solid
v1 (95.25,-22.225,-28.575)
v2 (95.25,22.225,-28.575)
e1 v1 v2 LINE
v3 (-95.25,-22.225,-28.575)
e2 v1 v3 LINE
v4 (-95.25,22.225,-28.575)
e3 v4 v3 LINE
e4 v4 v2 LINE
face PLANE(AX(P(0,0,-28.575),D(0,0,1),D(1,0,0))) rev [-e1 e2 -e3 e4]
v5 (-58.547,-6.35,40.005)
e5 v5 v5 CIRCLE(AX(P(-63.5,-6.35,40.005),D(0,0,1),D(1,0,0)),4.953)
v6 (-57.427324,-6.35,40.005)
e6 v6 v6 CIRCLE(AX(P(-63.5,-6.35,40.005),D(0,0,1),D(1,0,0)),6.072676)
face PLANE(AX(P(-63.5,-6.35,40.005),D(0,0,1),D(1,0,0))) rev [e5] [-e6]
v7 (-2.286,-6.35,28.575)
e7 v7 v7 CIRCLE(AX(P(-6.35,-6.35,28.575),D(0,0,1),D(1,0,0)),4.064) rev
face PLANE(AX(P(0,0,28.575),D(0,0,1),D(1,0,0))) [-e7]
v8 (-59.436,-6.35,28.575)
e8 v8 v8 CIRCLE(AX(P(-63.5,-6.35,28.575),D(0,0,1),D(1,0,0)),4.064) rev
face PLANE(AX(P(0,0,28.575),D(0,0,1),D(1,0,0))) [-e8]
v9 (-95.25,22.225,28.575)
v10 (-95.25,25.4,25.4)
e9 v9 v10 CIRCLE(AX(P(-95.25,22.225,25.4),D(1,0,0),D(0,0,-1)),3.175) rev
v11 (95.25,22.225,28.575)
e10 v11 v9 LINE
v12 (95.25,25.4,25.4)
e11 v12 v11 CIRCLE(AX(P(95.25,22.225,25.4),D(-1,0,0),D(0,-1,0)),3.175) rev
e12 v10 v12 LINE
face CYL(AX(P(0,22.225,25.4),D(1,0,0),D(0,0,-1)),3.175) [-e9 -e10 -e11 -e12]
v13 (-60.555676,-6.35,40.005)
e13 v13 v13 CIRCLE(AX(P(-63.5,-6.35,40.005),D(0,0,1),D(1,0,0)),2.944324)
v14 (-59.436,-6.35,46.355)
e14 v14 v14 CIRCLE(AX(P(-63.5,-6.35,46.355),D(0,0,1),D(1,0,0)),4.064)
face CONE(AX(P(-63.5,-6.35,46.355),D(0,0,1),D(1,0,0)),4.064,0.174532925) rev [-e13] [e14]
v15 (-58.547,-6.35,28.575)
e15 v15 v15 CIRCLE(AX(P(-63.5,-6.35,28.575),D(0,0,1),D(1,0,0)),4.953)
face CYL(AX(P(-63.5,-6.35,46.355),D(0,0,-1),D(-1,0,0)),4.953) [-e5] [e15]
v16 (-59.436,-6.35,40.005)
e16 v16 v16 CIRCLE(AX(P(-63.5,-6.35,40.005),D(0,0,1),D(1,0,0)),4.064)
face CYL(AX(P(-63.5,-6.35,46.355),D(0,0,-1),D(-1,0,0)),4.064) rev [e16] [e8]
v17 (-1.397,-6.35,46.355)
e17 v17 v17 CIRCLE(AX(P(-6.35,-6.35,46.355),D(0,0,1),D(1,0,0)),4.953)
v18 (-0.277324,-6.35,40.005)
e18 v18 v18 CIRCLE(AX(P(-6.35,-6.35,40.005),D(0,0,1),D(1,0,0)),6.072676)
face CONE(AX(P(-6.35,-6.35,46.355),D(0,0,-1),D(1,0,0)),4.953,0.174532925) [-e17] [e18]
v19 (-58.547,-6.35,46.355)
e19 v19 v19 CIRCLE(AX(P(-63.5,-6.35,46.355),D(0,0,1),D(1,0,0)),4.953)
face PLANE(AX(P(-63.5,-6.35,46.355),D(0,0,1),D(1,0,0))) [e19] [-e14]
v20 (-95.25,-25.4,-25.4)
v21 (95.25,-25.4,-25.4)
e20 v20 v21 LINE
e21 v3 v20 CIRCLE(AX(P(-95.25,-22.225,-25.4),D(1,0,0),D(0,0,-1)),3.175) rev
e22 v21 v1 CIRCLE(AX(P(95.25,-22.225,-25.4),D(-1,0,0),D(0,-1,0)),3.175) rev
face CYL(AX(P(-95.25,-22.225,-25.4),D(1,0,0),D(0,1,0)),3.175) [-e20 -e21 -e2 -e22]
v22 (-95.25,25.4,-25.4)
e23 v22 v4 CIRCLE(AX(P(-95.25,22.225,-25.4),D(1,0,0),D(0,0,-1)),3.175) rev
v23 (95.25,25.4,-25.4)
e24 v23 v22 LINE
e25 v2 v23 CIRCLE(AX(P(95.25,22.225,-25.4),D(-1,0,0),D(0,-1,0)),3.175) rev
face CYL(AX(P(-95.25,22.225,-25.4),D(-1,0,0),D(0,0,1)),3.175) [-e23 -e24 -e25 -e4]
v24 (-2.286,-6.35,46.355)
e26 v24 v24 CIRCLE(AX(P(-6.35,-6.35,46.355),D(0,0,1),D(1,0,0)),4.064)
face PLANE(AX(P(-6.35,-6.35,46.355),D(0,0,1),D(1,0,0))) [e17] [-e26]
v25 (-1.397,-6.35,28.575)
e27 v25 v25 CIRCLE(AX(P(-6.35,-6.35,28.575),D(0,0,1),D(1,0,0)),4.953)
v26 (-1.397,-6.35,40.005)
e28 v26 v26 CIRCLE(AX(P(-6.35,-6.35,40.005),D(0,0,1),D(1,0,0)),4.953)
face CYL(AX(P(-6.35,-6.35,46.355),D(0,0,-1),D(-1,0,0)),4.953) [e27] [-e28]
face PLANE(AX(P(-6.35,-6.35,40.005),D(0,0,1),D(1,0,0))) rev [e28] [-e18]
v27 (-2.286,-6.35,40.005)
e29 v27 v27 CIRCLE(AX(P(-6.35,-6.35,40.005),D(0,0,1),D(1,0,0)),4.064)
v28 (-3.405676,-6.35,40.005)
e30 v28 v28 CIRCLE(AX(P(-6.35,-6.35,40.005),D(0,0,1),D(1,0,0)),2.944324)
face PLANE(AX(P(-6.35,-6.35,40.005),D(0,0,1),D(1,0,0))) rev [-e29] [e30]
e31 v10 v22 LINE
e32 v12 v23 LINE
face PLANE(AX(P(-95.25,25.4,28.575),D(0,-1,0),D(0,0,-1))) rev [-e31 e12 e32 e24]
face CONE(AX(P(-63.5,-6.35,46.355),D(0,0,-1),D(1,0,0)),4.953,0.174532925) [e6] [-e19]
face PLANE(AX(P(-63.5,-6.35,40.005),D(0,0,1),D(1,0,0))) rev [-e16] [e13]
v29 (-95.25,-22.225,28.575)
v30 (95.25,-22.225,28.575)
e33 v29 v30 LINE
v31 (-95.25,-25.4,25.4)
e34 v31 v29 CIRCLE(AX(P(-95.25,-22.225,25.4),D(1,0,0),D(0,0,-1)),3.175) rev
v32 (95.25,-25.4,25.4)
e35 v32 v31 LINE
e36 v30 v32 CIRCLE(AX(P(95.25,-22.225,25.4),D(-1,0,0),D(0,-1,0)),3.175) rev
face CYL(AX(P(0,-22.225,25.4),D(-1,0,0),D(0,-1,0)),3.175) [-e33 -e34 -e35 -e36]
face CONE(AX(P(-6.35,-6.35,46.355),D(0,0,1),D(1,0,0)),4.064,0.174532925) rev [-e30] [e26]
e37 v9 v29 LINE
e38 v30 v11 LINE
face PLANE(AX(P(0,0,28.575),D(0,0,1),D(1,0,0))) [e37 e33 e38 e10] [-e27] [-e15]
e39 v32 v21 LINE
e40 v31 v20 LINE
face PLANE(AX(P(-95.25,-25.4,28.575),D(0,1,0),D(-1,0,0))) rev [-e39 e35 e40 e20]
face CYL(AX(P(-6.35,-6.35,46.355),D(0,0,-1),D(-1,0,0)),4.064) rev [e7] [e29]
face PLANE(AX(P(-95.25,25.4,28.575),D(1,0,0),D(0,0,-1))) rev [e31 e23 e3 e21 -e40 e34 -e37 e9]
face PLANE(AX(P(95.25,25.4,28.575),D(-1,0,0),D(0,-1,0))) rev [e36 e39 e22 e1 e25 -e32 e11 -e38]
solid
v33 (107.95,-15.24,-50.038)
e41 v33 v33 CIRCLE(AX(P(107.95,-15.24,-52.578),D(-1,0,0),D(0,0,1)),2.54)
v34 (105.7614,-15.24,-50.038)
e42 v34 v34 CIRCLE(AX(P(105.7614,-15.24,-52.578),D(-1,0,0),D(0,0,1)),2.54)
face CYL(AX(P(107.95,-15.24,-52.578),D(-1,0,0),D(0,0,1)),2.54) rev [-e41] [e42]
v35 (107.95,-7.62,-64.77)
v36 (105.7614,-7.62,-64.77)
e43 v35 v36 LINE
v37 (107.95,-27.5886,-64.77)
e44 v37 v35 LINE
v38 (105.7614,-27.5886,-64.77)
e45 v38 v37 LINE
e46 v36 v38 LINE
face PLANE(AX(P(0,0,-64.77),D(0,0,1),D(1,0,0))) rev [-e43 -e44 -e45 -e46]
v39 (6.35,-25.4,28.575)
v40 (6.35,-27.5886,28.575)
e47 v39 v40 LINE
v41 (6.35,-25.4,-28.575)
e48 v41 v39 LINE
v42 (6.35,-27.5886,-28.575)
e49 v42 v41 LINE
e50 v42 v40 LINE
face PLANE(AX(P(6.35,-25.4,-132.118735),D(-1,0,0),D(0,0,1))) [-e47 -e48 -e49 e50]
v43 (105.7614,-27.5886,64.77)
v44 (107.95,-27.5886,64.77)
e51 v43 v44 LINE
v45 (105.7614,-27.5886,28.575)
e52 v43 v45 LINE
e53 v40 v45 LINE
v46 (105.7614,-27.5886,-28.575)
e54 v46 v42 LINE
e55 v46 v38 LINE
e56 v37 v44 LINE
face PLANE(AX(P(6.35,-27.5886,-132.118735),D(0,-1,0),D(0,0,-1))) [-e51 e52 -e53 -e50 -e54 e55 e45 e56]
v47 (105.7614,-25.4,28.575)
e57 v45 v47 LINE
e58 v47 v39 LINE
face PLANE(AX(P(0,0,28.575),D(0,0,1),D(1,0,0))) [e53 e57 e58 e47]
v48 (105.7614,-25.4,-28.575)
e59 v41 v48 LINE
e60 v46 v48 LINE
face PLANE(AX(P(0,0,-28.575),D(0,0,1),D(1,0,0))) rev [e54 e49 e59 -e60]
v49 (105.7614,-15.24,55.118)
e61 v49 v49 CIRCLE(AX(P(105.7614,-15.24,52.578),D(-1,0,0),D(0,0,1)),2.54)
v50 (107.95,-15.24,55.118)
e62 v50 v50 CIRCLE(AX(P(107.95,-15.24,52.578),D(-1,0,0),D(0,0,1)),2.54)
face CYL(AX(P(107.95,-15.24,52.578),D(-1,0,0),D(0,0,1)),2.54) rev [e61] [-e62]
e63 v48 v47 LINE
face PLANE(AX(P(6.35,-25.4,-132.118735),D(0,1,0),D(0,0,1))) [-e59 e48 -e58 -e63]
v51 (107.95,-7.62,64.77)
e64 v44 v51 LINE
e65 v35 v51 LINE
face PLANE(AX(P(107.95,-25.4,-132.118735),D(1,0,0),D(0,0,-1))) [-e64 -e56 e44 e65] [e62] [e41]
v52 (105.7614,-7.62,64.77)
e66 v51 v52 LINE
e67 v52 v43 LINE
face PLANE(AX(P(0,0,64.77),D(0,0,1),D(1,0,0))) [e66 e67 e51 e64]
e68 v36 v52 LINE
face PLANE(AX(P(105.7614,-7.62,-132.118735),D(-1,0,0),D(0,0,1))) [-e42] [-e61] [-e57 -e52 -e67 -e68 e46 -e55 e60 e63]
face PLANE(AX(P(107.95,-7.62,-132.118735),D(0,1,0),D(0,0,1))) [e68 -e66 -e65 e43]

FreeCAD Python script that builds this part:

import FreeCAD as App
import Part
import Sketcher
from FreeCAD import Vector
Q = App.Units.Quantity


def edges_at(feature, points):
    """Names of the edges that pass closest to the given points."""
    edges = feature.Shape.Edges
    near = lambda p: min(range(len(edges)), key=lambda i: edges[i].distToShape(Part.Vertex(*p))[0])
    return sorted({f"Edge{near(p) + 1}" for p in points})


def faces_at(feature, points):
    """Names of the faces that lie closest to the given points."""
    faces = feature.Shape.Faces
    near = lambda p: min(range(len(faces)), key=lambda i: faces[i].distToShape(Part.Vertex(*p))[0])
    return sorted({f"Face{near(p) + 1}" for p in points})


def add_polygon(sketch, points):
    """Adds a closed chain of lines whose ends are joined by coincident constraints."""
    first, n = sketch.GeometryCount, len(points)
    for a, b in zip(points, points[1:] + points[:1]):
        sketch.addGeometry(Part.LineSegment(App.Vector(*a, 0), App.Vector(*b, 0)), False)
    for i in range(n):
        sketch.addConstraint(Sketcher.Constraint("Coincident", first + i, 2, first + (i + 1) % n, 1))

doc = App.newDocument("Part")
body = doc.addObject("PartDesign::Body", "Body")

sketch1 = body.newObject("Sketcher::SketchObject", "Sketch")
sketch1.AttachmentSupport = (doc.getObject("XY_Plane"), [""])
sketch1.MapMode = "FlatFace"
add_polygon(sketch1, [(-95, 25), (-95, -25), (95, -25), (95, 25)])
sketch1.addConstraint(Sketcher.Constraint("Vertical", 0))
sketch1.addConstraint(Sketcher.Constraint("Horizontal", 1))
sketch1.addConstraint(Sketcher.Constraint("Vertical", 2))
sketch1.addConstraint(Sketcher.Constraint("Horizontal", 3))
sketch1.addConstraint(Sketcher.Constraint("Symmetric", 0, 2, 2, 2, -1, 1))
sketch1.addConstraint(Sketcher.Constraint("DistanceY", 0, 2, 0, 1, Q("2 in")))
sketch1.addConstraint(Sketcher.Constraint("DistanceX", 1, 1, 1, 2, Q("7.5 in")))
pad1 = body.newObject("PartDesign::Pad", "Pad")
pad1.Profile = sketch1
pad1.Length = Q("2.25 in")
pad1.Midplane = True

sketch2 = body.newObject("Sketcher::SketchObject", "Sketch001")
sketch2.AttachmentSupport = (doc.getObject("XY_Plane"), [""])
sketch2.MapMode = "FlatFace"
sketch2.AttachmentOffset = App.Placement(Vector(0, 0, 1.125 * 25.4), App.Rotation())
sketch2.addGeometry(Part.Circle(Vector(-63.5, -6.3, 0), Vector(0, 0, 1), 5), False)
sketch2.addGeometry(Part.Circle(Vector(-63.5, -6.3, 0), Vector(0, 0, 1), 4.1), False)
sketch2.addGeometry(Part.Circle(Vector(-6.3, -6.3, 0), Vector(0, 0, 1), 5), False)
sketch2.addGeometry(Part.Circle(Vector(-6.3, -6.3, 0), Vector(0, 0, 1), 4.1), False)
sketch2.addConstraint(Sketcher.Constraint("Coincident", 1, 3, 0, 3))
sketch2.addConstraint(Sketcher.Constraint("Coincident", 3, 3, 2, 3))
sketch2.addConstraint(Sketcher.Constraint("Equal", 0, 2))
sketch2.addConstraint(Sketcher.Constraint("Equal", 1, 3))
sketch2.addConstraint(Sketcher.Constraint("Horizontal", 1, 3, 2, 3))
sketch2.addConstraint(Sketcher.Constraint("Diameter", 0, Q("0.39 in")))
sketch2.addConstraint(Sketcher.Constraint("Diameter", 1, Q("0.32 in")))
sketch2.addConstraint(Sketcher.Constraint("DistanceX", 0, 3, -1, 1, Q("2.5 in")))
sketch2.addConstraint(Sketcher.Constraint("DistanceY", 0, 3, -1, 1, Q("0.25 in")))
sketch2.addConstraint(Sketcher.Constraint("DistanceX", 2, 3, -1, 1, Q("0.25 in")))
pad2 = body.newObject("PartDesign::Pad", "Pad001")
pad2.Profile = sketch2
pad2.Length = Q("0.7 in")
body2 = doc.addObject("PartDesign::Body", "Body001")

sketch3 = body2.newObject("Sketcher::SketchObject", "Sketch002")
sketch3.AttachmentSupport = (doc.getObject("XY_Plane001"), [""])
sketch3.MapMode = "FlatFace"
sketch3.AttachmentOffset = App.Placement(Vector(0, 0, 1.825 * 25.4), App.Rotation())
sketch3.addGeometry(Part.Circle(Vector(-63.5, -6.3, 0), Vector(0, 0, 1), 5), False)
sketch3.addGeometry(Part.Circle(Vector(-63.5, -6.3, 0), Vector(0, 0, 1), 4.1), False)
sketch3.addConstraint(Sketcher.Constraint("Coincident", 1, 3, 0, 3))
sketch3.addConstraint(Sketcher.Constraint("Diameter", 0, Q("0.39 in")))
sketch3.addConstraint(Sketcher.Constraint("Diameter", 1, Q("0.32 in")))
sketch3.addConstraint(Sketcher.Constraint("DistanceX", 0, 3, -1, 1, Q("2.5 in")))
sketch3.addConstraint(Sketcher.Constraint("DistanceY", 0, 3, -1, 1, Q("0.25 in")))
pad3 = body2.newObject("PartDesign::Pad", "Pad002")
pad3.Profile = sketch3
pad3.Length = Q("0.25 in")
pad3.Reversed = True
doc.recompute()

datumplane = body2.newObject("PartDesign::Plane", "DatumPlane")
datumplane.AttachmentSupport = (doc.getObject("XY_Plane001"), [""])
datumplane.MapMode = "FlatFace"
datumplane.AttachmentOffset = App.Placement(Vector(0, 0, 1.825 * 25.4), App.Rotation())
draft = body2.newObject("PartDesign::Draft", "Draft")
draft.Base = (pad3, faces_at(pad3, [(-68.453, -6.35, 43.18), (-67.564, -6.35, 43.18)]))
draft.NeutralPlane = (datumplane, [""])
draft.Angle = 10
draft.Reversed = False
doc.recompute()

boolean = body.newObject("PartDesign::Boolean", "Boolean")
boolean.Type = "Fuse"
boolean.addObjects([body2])
body3 = doc.addObject("PartDesign::Body", "Body002")

sketch4 = body3.newObject("Sketcher::SketchObject", "Sketch003")
sketch4.AttachmentSupport = (doc.getObject("XY_Plane002"), [""])
sketch4.MapMode = "FlatFace"
sketch4.AttachmentOffset = App.Placement(Vector(0, 0, 1.825 * 25.4), App.Rotation())
sketch4.addGeometry(Part.Circle(Vector(-6.3, -6.3, 0), Vector(0, 0, 1), 5), False)
sketch4.addGeometry(Part.Circle(Vector(-6.3, -6.3, 0), Vector(0, 0, 1), 4.1), False)
sketch4.addConstraint(Sketcher.Constraint("Coincident", 1, 3, 0, 3))
sketch4.addConstraint(Sketcher.Constraint("Diameter", 0, Q("0.39 in")))
sketch4.addConstraint(Sketcher.Constraint("Diameter", 1, Q("0.32 in")))
sketch4.addConstraint(Sketcher.Constraint("DistanceX", 0, 3, -1, 1, Q("0.25 in")))
sketch4.addConstraint(Sketcher.Constraint("DistanceY", 0, 3, -1, 1, Q("0.25 in")))
pad4 = body3.newObject("PartDesign::Pad", "Pad003")
pad4.Profile = sketch4
pad4.Length = Q("0.25 in")
pad4.Reversed = True
doc.recompute()

datumplane2 = body3.newObject("PartDesign::Plane", "DatumPlane001")
datumplane2.AttachmentSupport = (doc.getObject("XY_Plane002"), [""])
datumplane2.MapMode = "FlatFace"
datumplane2.AttachmentOffset = App.Placement(Vector(0, 0, 1.825 * 25.4), App.Rotation())
draft2 = body3.newObject("PartDesign::Draft", "Draft001")
draft2.Base = (pad4, faces_at(pad4, [(-11.303, -6.35, 43.18), (-10.414, -6.35, 43.18)]))
draft2.NeutralPlane = (datumplane2, [""])
draft2.Angle = 10
draft2.Reversed = False
doc.recompute()

boolean2 = body.newObject("PartDesign::Boolean", "Boolean001")
boolean2.Type = "Fuse"
boolean2.addObjects([body3])
doc.recompute()

fillet = body.newObject("PartDesign::Fillet", "Fillet")
fillet.Base = (boolean2, edges_at(boolean2, [
    (0, -25.4, 28.575),
    (0, -25.4, -28.575),
    (0, 25.4, -28.575),
    (0, 25.4, 28.575),
]))
fillet.Radius = Q("0.125 in")
body4 = doc.addObject("PartDesign::Body", "Body003")

sketch5 = body4.newObject("Sketcher::SketchObject", "Sketch004")
sketch5.AttachmentSupport = (doc.getObject("XY_Plane003"), [""])
sketch5.MapMode = "FlatFace"
sketch5.AttachmentOffset = App.Placement(Vector(0, 0, 1.125 * 25.4), App.Rotation())
add_polygon(sketch5, [(105.8, -25.4), (6.3, -25.4), (6.3, -27.6), (108, -27.6), (108, -7.6), (105.8, -7.6)])
sketch5.addConstraint(Sketcher.Constraint("Horizontal", 0))
sketch5.addConstraint(Sketcher.Constraint("Vertical", 1))
sketch5.addConstraint(Sketcher.Constraint("Horizontal", 2))
sketch5.addConstraint(Sketcher.Constraint("Vertical", 3))
sketch5.addConstraint(Sketcher.Constraint("Horizontal", 4))
sketch5.addConstraint(Sketcher.Constraint("Vertical", 5))
sketch5.addConstraint(Sketcher.Constraint("Equal", 4, 1))
sketch5.addConstraint(Sketcher.Constraint("DistanceX", 2, 1, 2, 2, Q("4 in")))
sketch5.addConstraint(Sketcher.Constraint("DistanceY", 5, 2, 5, 1, Q("0.7 in")))
sketch5.addConstraint(Sketcher.Constraint("DistanceY", 0, 2, -1, 1, Q("1 in")))
sketch5.addConstraint(Sketcher.Constraint("DistanceX", -1, 1, 0, 2, Q("0.25 in")))
sketch5.addConstraint(Sketcher.Constraint("DistanceX", 0, 2, 0, 1, 99.4114))
pad5 = body4.newObject("PartDesign::Pad", "Pad004")
pad5.Profile = sketch5
pad5.Length = Q("2.25 in")
pad5.Reversed = True

sketch6 = body4.newObject("Sketcher::SketchObject", "Sketch005")
sketch6.AttachmentSupport = (doc.getObject("XY_Plane003"), [""])
sketch6.MapMode = "FlatFace"
add_polygon(sketch6, [(105.8, -7.6), (105.8, -27.6), (108, -27.6), (108, -7.6)])
sketch6.addConstraint(Sketcher.Constraint("Vertical", 0))
sketch6.addConstraint(Sketcher.Constraint("Horizontal", 1))
sketch6.addConstraint(Sketcher.Constraint("Vertical", 2))
sketch6.addConstraint(Sketcher.Constraint("Horizontal", 3))
sketch6.addConstraint(Sketcher.Constraint("DistanceY", 2, 2, -1, 1, Q("0.3 in")))
sketch6.addConstraint(Sketcher.Constraint("DistanceX", -1, 1, 1, 2, Q("4.25 in")))
sketch6.addConstraint(Sketcher.Constraint("DistanceX", 1, 1, 1, 2, 2.1886))
sketch6.addConstraint(Sketcher.Constraint("DistanceY", 0, 2, 0, 1, 19.9686))
pad6 = body4.newObject("PartDesign::Pad", "Pad005")
pad6.Profile = sketch6
pad6.Length = Q("5.1 in")
pad6.Midplane = True

sketch7 = body4.newObject("Sketcher::SketchObject", "Sketch006")
sketch7.AttachmentSupport = (doc.getObject("YZ_Plane003"), [""])
sketch7.MapMode = "FlatFace"
sketch7.AttachmentOffset = App.Placement(Vector(0, 0, 105.7614), App.Rotation())
sketch7.addGeometry(Part.Circle(Vector(-15.2, 52.6, 0), Vector(0, 0, 1), 2.5), False)
sketch7.addGeometry(Part.Circle(Vector(-15.2, -52.6, 0), Vector(0, 0, 1), 2.5), False)
sketch7.addConstraint(Sketcher.Constraint("Equal", 0, 1))
sketch7.addConstraint(Sketcher.Constraint("Symmetric", 0, 3, 1, 3, -1))
sketch7.addConstraint(Sketcher.Constraint("Diameter", 0, Q("0.2 in")))
sketch7.addConstraint(Sketcher.Constraint("DistanceX", 0, 3, -1, 1, Q("0.6 in")))
sketch7.addConstraint(Sketcher.Constraint("DistanceY", -1, 1, 0, 3, Q("2.07 in")))
pocket1 = body4.newObject("PartDesign::Pocket", "Pocket")
pocket1.Profile = sketch7
pocket1.Type = "ThroughAll"
pocket1.Reversed = True

doc.recompute()
